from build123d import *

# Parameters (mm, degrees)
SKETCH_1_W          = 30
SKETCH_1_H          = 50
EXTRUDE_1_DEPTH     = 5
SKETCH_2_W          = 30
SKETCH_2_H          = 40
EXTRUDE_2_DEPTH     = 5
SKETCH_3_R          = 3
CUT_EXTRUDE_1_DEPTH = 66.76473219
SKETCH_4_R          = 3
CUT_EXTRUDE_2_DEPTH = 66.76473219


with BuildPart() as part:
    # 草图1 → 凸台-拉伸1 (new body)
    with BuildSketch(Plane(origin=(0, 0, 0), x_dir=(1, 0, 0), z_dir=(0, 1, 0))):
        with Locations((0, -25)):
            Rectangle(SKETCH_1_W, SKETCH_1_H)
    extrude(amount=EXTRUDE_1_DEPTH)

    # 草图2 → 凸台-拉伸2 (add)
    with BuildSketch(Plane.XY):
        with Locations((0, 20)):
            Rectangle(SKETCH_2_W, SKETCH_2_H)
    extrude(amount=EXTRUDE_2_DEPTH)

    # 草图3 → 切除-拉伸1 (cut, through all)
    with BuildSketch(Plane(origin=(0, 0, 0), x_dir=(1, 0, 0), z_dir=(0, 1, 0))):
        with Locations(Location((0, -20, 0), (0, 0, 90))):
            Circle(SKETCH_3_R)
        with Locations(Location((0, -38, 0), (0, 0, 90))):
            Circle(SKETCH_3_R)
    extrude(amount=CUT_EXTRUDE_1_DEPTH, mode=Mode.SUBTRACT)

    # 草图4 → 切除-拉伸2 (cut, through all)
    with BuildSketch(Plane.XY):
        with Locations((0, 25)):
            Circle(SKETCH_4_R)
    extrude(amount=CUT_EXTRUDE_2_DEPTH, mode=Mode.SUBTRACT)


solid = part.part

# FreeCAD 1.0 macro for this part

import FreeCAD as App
import Part
import Sketcher


def add_polygon(sketch, points):
    """Adds a closed chain of lines whose ends are joined by coincident constraints."""
    first, n = sketch.GeometryCount, len(points)
    for a, b in zip(points, points[1:] + points[:1]):
        sketch.addGeometry(Part.LineSegment(App.Vector(*a, 0), App.Vector(*b, 0)), False)
    for i in range(n):
        sketch.addConstraint(Sketcher.Constraint("Coincident", first + i, 2, first + (i + 1) % n, 1))

doc = App.newDocument("Part")
body = doc.addObject("PartDesign::Body", "Body")

sketch1 = doc.addObject("Sketcher::SketchObject", "Sketch")
body.addObject(sketch1)
sketch1.AttachmentSupport = (doc.XZ_Plane, [""])
sketch1.MapMode = "FlatFace"
add_polygon(sketch1, [(-15, 0), (-15, 50), (15, 50), (15, 0)])
sketch1.addConstraint([
    Sketcher.Constraint("Vertical", 0),
    Sketcher.Constraint("Horizontal", 1),
    Sketcher.Constraint("Vertical", 2),
    Sketcher.Constraint("Horizontal", 3),
    Sketcher.Constraint("Symmetric", 2, 2, 3, 2, -1, 1),
    Sketcher.Constraint("DistanceX", 1, 1, 1, 2, 30.0),
    Sketcher.Constraint("DistanceY", 0, 1, 0, 2, 50.0),
])
pad1 = doc.addObject("PartDesign::Pad", "Pad")
body.addObject(pad1)
pad1.Profile = sketch1
pad1.Length = 5
pad1.Reversed = True

sketch2 = doc.addObject("Sketcher::SketchObject", "Sketch001")
body.addObject(sketch2)
sketch2.AttachmentSupport = (doc.XY_Plane, [""])
sketch2.MapMode = "FlatFace"
add_polygon(sketch2, [(-15, 40), (-15, 0), (15, 0), (15, 40)])
sketch2.addConstraint([
    Sketcher.Constraint("Vertical", 0),
    Sketcher.Constraint("Horizontal", 1),
    Sketcher.Constraint("Vertical", 2),
    Sketcher.Constraint("Horizontal", 3),
    Sketcher.Constraint("Symmetric", 0, 2, 1, 2, -1, 1),
    Sketcher.Constraint("DistanceX", 1, 1, 1, 2, 30.0),
    Sketcher.Constraint("DistanceY", 0, 2, 0, 1, 40.0),
])
pad2 = doc.addObject("PartDesign::Pad", "Pad001")
body.addObject(pad2)
pad2.Profile = sketch2
pad2.Length = 5

sketch3 = doc.addObject("Sketcher::SketchObject", "Sketch002")
body.addObject(sketch3)
sketch3.AttachmentSupport = (doc.XZ_Plane, [""])
sketch3.MapMode = "FlatFace"
sketch3.addGeometry([
    Part.Circle(App.Vector(0, 20, 0), App.Vector(0, 0, 1), 3),
    Part.Circle(App.Vector(0, 38, 0), App.Vector(0, 0, 1), 3),
], False)
sketch3.addConstraint([
    Sketcher.Constraint("Equal", 0, 1),
    Sketcher.Constraint("PointOnObject", 0, 3, -2),
    Sketcher.Constraint("PointOnObject", 1, 3, -2),
    Sketcher.Constraint("Diameter", 0, 6.0),
    Sketcher.Constraint("DistanceY", -1, 1, 0, 3, 20.0),
    Sketcher.Constraint("DistanceY", -1, 1, 1, 3, 38.0),
])
pocket1 = doc.addObject("PartDesign::Pocket", "Pocket")
body.addObject(pocket1)
pocket1.Profile = sketch3
pocket1.Type = "ThroughAll"

sketch4 = doc.addObject("Sketcher::SketchObject", "Sketch003")
body.addObject(sketch4)
sketch4.AttachmentSupport = (doc.XY_Plane, [""])
sketch4.MapMode = "FlatFace"
sketch4.addGeometry(Part.Circle(App.Vector(0, 25, 0), App.Vector(0, 0, 1), 3), False)
sketch4.addConstraint([
    Sketcher.Constraint("PointOnObject", 0, 3, -2),
    Sketcher.Constraint("Diameter", 0, 6.0),
    Sketcher.Constraint("DistanceY", -1, 1, 0, 3, 25.0),
])
pocket2 = doc.addObject("PartDesign::Pocket", "Pocket001")
body.addObject(pocket2)
pocket2.Profile = sketch4
pocket2.Type = "ThroughAll"
pocket2.Reversed = True

doc.recompute()
